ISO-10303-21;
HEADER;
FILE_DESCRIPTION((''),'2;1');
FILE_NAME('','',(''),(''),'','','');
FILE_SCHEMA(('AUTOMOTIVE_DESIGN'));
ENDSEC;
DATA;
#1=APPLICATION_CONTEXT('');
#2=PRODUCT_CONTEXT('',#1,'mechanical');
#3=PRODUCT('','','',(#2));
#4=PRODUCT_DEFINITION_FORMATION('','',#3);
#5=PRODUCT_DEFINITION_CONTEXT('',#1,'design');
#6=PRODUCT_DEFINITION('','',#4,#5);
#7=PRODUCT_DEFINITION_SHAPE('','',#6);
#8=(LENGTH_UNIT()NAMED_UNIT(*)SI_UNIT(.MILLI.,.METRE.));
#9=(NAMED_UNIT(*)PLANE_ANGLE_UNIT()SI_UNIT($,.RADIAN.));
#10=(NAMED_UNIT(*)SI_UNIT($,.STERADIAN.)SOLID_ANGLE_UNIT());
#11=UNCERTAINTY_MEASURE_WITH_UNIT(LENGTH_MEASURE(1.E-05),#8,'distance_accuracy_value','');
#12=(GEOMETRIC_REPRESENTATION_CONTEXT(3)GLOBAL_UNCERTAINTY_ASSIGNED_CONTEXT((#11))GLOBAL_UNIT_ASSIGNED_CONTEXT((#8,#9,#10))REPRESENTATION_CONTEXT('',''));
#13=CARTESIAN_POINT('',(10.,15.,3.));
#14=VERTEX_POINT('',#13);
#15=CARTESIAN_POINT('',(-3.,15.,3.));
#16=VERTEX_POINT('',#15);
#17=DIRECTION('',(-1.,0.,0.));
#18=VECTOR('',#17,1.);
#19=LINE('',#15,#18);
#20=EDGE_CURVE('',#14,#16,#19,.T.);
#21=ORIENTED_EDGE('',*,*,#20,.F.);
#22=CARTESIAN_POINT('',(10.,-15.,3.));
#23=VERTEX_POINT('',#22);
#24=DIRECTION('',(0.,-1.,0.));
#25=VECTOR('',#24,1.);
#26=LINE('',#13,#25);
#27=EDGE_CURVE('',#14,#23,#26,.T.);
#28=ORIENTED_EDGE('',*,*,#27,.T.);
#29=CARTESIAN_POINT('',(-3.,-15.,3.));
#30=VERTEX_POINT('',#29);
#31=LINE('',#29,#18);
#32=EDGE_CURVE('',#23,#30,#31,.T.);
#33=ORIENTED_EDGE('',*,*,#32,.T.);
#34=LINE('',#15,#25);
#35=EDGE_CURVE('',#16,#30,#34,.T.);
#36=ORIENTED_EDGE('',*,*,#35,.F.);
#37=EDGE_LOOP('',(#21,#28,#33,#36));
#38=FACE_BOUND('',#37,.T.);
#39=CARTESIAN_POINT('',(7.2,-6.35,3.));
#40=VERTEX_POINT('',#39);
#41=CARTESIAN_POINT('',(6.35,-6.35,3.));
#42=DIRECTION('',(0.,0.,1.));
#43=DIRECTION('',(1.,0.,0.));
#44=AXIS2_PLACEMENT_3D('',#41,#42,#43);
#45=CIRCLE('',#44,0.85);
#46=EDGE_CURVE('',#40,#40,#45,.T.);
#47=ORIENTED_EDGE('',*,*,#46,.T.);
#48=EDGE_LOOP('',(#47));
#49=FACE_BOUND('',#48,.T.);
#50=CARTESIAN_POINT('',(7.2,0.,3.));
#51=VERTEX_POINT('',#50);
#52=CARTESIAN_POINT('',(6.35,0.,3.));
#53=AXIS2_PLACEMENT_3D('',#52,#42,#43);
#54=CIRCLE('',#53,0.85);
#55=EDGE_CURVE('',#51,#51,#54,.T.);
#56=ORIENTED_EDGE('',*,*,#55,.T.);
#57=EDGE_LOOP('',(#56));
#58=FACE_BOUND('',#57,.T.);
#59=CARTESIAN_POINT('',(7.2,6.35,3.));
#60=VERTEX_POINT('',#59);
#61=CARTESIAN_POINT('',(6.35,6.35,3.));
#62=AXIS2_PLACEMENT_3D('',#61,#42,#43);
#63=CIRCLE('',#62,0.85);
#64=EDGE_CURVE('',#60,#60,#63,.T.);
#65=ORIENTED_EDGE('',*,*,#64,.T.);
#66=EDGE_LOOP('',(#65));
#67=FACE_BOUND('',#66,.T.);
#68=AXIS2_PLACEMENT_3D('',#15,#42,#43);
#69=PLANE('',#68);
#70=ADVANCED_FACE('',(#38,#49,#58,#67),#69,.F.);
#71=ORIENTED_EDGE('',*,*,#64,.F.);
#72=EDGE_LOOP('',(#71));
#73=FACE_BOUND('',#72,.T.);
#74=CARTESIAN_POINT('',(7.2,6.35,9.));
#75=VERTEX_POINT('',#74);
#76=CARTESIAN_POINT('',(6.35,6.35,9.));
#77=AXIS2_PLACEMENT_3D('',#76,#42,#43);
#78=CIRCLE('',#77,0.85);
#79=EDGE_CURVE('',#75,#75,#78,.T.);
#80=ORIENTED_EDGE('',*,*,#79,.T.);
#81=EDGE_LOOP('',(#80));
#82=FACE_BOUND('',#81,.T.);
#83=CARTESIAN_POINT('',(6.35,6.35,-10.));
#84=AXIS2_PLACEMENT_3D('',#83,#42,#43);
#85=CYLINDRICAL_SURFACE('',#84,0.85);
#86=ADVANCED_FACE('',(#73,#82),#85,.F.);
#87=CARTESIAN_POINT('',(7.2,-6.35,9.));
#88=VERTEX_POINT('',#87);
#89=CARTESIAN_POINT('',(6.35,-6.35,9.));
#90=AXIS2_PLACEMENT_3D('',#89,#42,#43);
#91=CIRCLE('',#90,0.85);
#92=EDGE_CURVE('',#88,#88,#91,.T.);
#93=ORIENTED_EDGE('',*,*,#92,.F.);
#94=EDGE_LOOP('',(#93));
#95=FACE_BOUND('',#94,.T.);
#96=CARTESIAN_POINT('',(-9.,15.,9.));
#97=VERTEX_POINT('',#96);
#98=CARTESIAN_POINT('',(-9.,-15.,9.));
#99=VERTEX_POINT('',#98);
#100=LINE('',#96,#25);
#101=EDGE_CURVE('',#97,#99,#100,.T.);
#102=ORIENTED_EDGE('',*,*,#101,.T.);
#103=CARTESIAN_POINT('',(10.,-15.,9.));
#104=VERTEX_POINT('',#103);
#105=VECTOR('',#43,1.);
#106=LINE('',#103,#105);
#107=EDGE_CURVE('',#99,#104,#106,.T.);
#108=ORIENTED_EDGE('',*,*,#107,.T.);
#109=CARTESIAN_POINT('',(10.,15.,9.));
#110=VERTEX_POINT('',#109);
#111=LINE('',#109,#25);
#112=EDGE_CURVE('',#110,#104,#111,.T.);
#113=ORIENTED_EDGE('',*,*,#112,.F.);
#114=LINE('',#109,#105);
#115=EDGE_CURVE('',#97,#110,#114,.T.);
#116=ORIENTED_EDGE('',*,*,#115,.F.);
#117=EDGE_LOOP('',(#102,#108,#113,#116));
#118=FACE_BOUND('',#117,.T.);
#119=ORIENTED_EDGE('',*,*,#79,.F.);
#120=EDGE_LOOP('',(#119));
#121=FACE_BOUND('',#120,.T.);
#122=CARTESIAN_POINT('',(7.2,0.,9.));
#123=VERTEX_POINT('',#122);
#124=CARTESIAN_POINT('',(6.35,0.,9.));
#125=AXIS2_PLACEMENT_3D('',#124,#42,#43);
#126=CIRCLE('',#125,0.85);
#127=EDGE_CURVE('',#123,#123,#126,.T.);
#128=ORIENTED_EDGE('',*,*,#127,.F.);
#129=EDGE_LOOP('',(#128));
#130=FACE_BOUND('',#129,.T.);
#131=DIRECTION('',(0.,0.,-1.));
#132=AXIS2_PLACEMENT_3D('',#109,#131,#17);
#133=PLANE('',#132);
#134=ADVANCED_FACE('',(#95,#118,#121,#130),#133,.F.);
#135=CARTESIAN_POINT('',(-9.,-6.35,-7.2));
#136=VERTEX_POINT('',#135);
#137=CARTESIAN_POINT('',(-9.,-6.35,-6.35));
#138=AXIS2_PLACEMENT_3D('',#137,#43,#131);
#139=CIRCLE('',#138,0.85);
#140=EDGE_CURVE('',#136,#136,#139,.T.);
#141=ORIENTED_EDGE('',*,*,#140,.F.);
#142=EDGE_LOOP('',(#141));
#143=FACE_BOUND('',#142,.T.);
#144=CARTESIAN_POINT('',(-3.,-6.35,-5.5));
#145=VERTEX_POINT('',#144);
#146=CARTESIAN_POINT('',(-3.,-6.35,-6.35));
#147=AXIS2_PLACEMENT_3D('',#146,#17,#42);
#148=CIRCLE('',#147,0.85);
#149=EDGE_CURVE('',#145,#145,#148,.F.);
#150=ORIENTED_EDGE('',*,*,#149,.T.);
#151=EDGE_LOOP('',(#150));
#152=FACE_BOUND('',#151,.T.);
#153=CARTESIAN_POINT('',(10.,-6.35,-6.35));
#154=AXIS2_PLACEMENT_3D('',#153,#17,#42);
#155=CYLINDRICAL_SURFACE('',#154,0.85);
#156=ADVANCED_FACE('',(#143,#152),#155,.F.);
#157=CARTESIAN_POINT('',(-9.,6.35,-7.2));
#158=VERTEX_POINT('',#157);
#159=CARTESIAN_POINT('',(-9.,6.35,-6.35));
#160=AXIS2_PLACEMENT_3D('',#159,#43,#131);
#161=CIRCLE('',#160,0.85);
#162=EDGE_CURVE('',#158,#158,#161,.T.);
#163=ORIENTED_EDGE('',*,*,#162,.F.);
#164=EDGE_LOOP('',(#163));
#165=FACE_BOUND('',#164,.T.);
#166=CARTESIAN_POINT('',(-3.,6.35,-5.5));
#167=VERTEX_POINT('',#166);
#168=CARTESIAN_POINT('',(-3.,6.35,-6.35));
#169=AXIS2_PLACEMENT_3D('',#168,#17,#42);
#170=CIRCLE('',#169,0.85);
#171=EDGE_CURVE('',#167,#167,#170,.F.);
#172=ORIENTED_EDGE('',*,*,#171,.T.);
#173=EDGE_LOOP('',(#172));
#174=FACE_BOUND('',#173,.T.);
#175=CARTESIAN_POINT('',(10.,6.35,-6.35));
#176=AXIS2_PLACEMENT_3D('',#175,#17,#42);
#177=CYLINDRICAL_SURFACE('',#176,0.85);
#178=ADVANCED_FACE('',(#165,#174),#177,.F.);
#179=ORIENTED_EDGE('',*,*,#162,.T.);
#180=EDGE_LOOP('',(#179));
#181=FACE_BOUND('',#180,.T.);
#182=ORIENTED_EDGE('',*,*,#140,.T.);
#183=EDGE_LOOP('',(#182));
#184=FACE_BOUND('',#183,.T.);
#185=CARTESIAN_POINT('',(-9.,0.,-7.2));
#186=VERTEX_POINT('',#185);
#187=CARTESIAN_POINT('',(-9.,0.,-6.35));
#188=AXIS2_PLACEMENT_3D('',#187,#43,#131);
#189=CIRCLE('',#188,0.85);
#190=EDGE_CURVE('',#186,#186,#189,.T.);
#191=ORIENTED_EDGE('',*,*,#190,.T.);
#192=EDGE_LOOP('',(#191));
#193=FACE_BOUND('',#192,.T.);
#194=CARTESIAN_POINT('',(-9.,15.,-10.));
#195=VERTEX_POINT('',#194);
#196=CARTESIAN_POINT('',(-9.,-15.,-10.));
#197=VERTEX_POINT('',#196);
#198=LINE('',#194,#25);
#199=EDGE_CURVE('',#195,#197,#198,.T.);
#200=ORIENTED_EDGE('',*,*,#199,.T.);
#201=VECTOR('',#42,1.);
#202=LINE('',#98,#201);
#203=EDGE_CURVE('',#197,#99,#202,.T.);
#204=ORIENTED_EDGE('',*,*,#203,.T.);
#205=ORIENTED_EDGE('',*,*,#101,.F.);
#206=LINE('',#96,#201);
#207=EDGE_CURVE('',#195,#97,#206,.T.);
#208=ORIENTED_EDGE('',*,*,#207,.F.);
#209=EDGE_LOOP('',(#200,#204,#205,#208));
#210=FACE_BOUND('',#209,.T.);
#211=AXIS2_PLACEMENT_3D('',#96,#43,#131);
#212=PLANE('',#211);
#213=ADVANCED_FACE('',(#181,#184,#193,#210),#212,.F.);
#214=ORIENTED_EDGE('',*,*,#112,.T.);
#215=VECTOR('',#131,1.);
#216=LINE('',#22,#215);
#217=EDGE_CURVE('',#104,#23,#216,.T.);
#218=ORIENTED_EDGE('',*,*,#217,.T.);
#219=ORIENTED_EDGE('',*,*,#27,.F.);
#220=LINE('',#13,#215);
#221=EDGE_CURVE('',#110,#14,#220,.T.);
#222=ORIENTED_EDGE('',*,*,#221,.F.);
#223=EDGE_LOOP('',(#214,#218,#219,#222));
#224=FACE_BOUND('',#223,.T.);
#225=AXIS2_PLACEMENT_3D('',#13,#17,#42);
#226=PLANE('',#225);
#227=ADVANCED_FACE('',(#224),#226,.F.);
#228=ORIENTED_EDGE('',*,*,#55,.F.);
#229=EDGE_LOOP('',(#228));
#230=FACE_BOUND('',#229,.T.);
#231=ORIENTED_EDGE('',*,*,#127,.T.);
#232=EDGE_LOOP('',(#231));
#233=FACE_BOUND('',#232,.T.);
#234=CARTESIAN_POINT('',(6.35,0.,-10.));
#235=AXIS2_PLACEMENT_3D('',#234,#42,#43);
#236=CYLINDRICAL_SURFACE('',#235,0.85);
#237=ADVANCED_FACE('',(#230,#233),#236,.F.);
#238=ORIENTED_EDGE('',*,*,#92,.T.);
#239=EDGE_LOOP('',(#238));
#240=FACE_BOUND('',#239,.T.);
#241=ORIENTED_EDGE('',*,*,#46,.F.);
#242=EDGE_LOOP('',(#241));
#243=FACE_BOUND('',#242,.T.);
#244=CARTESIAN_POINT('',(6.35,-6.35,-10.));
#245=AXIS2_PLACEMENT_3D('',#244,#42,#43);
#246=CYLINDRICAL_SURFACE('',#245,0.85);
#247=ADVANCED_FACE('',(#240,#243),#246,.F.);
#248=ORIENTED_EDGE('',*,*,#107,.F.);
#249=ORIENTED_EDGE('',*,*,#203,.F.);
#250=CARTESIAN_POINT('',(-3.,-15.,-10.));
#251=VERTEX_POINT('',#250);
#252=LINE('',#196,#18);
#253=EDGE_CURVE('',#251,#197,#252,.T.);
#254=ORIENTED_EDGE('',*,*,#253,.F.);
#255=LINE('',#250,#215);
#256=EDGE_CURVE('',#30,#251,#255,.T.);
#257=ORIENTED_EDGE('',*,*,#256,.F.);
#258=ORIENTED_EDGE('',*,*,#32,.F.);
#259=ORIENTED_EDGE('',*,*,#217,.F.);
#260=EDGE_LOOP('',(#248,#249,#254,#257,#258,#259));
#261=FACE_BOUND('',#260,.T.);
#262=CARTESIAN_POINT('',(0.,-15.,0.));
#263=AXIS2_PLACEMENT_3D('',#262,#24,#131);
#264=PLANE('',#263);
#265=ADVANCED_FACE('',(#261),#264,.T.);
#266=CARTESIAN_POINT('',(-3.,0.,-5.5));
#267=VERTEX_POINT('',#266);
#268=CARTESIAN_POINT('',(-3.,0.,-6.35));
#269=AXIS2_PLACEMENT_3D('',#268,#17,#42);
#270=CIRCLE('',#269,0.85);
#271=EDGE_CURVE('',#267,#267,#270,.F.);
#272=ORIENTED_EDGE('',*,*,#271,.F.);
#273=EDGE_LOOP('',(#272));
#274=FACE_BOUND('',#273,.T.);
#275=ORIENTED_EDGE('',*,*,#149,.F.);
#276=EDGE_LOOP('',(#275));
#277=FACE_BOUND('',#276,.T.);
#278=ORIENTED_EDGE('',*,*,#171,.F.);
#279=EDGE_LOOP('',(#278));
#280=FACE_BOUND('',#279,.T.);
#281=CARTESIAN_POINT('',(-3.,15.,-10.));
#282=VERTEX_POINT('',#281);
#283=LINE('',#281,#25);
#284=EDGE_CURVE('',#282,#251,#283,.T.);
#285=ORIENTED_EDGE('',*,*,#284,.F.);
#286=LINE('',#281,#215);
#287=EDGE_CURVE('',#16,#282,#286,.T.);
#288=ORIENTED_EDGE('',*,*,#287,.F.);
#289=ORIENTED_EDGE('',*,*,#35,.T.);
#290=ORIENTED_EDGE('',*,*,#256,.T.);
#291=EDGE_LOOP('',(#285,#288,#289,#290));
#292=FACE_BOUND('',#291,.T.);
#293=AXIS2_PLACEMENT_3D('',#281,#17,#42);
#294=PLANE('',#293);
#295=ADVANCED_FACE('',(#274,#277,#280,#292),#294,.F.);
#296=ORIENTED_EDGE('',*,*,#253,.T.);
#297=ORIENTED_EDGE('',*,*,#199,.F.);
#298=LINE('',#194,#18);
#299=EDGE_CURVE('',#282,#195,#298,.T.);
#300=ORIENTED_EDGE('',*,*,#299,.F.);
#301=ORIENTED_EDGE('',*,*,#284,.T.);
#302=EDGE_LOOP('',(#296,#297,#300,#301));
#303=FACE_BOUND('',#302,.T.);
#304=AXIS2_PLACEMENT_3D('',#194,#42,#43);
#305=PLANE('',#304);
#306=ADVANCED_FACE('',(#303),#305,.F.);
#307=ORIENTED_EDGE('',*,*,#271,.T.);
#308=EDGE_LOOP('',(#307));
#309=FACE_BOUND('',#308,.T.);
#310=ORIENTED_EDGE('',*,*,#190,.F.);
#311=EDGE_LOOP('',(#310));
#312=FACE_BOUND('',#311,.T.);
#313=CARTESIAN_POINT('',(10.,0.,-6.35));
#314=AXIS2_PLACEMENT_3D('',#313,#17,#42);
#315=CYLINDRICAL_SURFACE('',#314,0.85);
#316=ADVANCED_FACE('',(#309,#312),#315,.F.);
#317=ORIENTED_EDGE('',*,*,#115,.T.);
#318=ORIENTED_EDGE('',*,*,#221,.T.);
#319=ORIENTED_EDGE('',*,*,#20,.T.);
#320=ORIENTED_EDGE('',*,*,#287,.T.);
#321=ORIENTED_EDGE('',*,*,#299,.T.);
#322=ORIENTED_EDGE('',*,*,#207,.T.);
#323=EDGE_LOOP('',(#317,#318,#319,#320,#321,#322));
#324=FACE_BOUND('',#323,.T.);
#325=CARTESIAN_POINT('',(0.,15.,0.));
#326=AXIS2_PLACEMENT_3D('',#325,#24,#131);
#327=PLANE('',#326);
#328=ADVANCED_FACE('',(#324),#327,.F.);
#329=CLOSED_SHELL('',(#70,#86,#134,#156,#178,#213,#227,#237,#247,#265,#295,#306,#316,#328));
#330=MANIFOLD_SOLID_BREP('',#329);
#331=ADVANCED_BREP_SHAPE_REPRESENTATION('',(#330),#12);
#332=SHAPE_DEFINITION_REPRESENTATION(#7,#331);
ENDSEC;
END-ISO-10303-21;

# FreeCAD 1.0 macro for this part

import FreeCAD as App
import Part
import Sketcher
from FreeCAD import Vector


def add_polygon(sketch, points):
    """Adds a closed chain of lines whose ends are joined by coincident constraints."""
    first, n = sketch.GeometryCount, len(points)
    for a, b in zip(points, points[1:] + points[:1]):
        sketch.addGeometry(Part.LineSegment(App.Vector(*a, 0), App.Vector(*b, 0)), False)
    for i in range(n):
        sketch.addConstraint(Sketcher.Constraint("Coincident", first + i, 2, first + (i + 1) % n, 1))

doc = App.newDocument("Part")
body = doc.addObject("PartDesign::Body", "Body")

# Sketch on XZ plane
sketch1 = doc.addObject("Sketcher::SketchObject", "Sketch")
body.addObject(sketch1)
sketch1.AttachmentSupport = (doc.XZ_Plane, [""])
sketch1.MapMode = "FlatFace"
add_polygon(sketch1, [(-3, 3), (-3, -10), (-9, -10), (-9, 9), (10, 9), (10, 3)])  # lines 0-5
sketch1.addConstraint(Sketcher.Constraint("Vertical", 0))
sketch1.addConstraint(Sketcher.Constraint("Horizontal", 1))
sketch1.addConstraint(Sketcher.Constraint("Vertical", 2))
sketch1.addConstraint(Sketcher.Constraint("Horizontal", 3))
sketch1.addConstraint(Sketcher.Constraint("Vertical", 4))
sketch1.addConstraint(Sketcher.Constraint("Horizontal", 5))
sketch1.addConstraint(Sketcher.Constraint("Equal", 5, 0))
sketch1.addConstraint(Sketcher.Constraint("Equal", 3, 2))
sketch1.addConstraint(Sketcher.Constraint("DistanceX", 1, 2, 1, 1, 6.0))
sketch1.addConstraint(Sketcher.Constraint("DistanceX", 3, 1, 3, 2, 19.0))
sketch1.addConstraint(Sketcher.Constraint("DistanceX", 0, 2, -1, 1, 3.0))
sketch1.addConstraint(Sketcher.Constraint("DistanceY", 0, 2, -1, 1, 10.0))
pad1 = doc.addObject("PartDesign::Pad", "Pad")
body.addObject(pad1)
pad1.Profile = sketch1
pad1.Length = 30
pad1.Midplane = True

# Sketch on XY plane
sketch2 = doc.addObject("Sketcher::SketchObject", "Sketch001")
body.addObject(sketch2)
sketch2.AttachmentSupport = (doc.XY_Plane, [""])
sketch2.MapMode = "FlatFace"
sketch2.AttachmentOffset = App.Placement(Vector(0, 0, 9), App.Rotation())
sketch2.addGeometry(Part.Circle(Vector(6.3, 6.3, 0), Vector(0, 0, 1), 0.8), False)
sketch2.addGeometry(Part.Circle(Vector(6.3, 0, 0), Vector(0, 0, 1), 0.8), False)
sketch2.addGeometry(Part.Circle(Vector(6.3, -6.3, 0), Vector(0, 0, 1), 0.8), False)
sketch2.addConstraint(Sketcher.Constraint("Equal", 0, 1))
sketch2.addConstraint(Sketcher.Constraint("Equal", 1, 2))
sketch2.addConstraint(Sketcher.Constraint("Symmetric", 0, 3, 2, 3, -1))
sketch2.addConstraint(Sketcher.Constraint("PointOnObject", 1, 3, -1))
sketch2.addConstraint(Sketcher.Constraint("Vertical", 0, 3, 1, 3))
sketch2.addConstraint(Sketcher.Constraint("Diameter", 0, 1.7))
sketch2.addConstraint(Sketcher.Constraint("DistanceY", 2, 3, 0, 3, 12.7))
sketch2.addConstraint(Sketcher.Constraint("DistanceX", -1, 1, 0, 3, 6.35))
pocket1 = doc.addObject("PartDesign::Pocket", "Pocket")
body.addObject(pocket1)
pocket1.Profile = sketch2
pocket1.Type = "ThroughAll"
doc.recompute()

datumplane = doc.addObject("PartDesign::Plane", "DatumPlane")
body.addObject(datumplane)
datumplane.Placement = App.Placement(Vector(0, 0, 0), App.Rotation(Vector(-0.707106781, 0, 0.707106781), Vector(0, -1, 0), Vector(0.707106781, 0, 0.707106781), "ZXY"))
mirrored = doc.addObject("PartDesign::Mirrored", "Mirrored")
body.addObject(mirrored)
mirrored.Originals = [pocket1]
mirrored.MirrorPlane = (datumplane, [""])
body.Tip = mirrored

doc.recompute()
